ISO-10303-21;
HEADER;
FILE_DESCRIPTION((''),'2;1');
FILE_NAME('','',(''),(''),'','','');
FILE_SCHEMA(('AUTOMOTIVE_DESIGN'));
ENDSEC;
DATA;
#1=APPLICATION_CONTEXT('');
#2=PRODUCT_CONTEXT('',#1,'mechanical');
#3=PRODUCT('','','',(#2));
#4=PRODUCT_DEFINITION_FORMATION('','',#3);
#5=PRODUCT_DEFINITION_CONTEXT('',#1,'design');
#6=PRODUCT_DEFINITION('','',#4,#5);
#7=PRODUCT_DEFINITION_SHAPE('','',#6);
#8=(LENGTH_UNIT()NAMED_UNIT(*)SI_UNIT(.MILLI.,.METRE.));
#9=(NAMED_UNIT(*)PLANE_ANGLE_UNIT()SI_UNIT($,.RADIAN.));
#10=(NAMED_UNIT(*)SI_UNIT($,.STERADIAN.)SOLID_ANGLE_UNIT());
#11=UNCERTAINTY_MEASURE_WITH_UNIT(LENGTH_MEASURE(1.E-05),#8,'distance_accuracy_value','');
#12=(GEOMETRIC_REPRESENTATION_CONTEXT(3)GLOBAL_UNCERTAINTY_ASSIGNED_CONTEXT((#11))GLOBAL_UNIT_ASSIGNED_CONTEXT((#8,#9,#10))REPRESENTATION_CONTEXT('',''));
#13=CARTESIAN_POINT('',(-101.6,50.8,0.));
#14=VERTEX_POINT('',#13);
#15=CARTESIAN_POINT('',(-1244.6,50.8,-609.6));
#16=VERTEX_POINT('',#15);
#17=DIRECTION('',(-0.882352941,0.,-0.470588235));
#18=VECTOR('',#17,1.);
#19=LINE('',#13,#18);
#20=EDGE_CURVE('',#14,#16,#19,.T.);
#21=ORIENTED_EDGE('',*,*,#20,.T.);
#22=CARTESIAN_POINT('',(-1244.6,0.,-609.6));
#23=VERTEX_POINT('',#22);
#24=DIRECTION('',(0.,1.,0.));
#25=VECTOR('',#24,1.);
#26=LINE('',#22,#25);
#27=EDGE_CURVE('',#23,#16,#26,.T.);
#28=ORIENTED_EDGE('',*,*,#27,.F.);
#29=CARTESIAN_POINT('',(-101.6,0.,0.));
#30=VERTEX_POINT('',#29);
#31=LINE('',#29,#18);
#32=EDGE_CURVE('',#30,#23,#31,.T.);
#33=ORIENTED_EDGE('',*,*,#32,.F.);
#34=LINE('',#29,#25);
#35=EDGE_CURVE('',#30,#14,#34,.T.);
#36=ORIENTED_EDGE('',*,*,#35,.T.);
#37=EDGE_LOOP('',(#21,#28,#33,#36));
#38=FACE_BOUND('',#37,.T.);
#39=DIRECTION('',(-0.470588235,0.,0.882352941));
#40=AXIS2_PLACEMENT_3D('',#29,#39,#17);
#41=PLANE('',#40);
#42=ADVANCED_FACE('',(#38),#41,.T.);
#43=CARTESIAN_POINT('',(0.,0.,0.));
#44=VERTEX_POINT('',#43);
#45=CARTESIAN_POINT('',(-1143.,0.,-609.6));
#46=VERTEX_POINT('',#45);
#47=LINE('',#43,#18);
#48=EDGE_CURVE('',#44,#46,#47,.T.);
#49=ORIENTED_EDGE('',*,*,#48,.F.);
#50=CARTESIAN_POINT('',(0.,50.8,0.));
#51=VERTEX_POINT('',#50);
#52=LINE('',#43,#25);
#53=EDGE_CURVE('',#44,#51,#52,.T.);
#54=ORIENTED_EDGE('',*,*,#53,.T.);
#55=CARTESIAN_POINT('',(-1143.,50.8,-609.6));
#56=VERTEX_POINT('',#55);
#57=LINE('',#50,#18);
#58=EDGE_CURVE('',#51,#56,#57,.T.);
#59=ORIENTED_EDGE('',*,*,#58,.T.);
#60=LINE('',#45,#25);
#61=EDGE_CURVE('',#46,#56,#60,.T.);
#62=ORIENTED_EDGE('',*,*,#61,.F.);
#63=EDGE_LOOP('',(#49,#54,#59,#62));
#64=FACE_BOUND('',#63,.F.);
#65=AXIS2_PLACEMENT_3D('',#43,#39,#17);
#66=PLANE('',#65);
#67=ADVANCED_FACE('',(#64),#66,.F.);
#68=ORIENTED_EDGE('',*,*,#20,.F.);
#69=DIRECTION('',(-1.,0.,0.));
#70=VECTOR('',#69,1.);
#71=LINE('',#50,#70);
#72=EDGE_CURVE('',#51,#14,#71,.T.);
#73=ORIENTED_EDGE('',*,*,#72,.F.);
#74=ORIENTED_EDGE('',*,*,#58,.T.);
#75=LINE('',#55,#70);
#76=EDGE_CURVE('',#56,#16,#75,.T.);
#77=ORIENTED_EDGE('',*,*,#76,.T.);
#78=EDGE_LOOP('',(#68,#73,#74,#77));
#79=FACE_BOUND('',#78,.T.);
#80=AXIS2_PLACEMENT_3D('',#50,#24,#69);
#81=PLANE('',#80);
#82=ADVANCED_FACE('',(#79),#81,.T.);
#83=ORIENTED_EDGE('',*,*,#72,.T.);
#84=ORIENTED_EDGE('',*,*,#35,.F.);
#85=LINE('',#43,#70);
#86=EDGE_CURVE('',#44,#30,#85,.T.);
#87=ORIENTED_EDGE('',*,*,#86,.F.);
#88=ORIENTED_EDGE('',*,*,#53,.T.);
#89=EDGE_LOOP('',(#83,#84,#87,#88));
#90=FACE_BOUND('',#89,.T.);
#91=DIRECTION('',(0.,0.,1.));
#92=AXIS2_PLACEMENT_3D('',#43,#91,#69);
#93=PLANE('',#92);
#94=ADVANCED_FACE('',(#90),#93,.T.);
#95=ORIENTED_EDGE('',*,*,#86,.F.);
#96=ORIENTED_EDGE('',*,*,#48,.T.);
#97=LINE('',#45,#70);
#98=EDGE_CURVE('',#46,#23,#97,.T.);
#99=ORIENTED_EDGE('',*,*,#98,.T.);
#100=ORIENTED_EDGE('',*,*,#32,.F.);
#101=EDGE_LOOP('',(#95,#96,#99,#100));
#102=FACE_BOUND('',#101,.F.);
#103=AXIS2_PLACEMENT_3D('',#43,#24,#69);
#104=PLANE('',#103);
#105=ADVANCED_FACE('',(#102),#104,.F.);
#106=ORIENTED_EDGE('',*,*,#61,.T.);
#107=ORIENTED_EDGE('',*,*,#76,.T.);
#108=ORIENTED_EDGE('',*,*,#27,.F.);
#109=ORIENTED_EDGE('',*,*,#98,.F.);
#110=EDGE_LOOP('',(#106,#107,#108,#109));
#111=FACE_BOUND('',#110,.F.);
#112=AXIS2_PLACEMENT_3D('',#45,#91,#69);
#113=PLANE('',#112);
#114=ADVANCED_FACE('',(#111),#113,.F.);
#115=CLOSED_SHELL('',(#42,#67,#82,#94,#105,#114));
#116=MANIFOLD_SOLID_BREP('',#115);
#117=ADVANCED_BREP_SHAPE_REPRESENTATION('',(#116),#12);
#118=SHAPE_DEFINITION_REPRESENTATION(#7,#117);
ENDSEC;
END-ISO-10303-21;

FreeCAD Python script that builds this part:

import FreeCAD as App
import Part
import Sketcher

V = App.Vector
Q = App.Units.Quantity

doc = App.newDocument("Part")
body = doc.addObject("PartDesign::Body", "Body")

# Sketch on XZ plane
sketch1 = doc.addObject("Sketcher::SketchObject", "Sketch")
body.addObject(sketch1)
sketch1.AttachmentSupport = (doc.XZ_Plane, [""])
sketch1.MapMode = "FlatFace"
sketch1.addGeometry([
    Part.LineSegment(V(-102, 0, 0), V(0, 0, 0)),
    Part.LineSegment(V(0, 0, 0), V(-1143, -610, 0)),
    Part.LineSegment(V(-1143, -610, 0), V(-1245, -610, 0)),
    Part.LineSegment(V(-1245, -610, 0), V(-102, 0, 0)),
], False)
sketch1.addConstraint([
    Sketcher.Constraint("Coincident", 0, 2, 1, 1),
    Sketcher.Constraint("Coincident", 1, 2, 2, 1),
    Sketcher.Constraint("Coincident", 2, 2, 3, 1),
    Sketcher.Constraint("Coincident", 3, 2, 0, 1),
    Sketcher.Constraint("Horizontal", 0),
    Sketcher.Constraint("Horizontal", 2),
    Sketcher.Constraint("Coincident", 0, 2, -1, 1),
    Sketcher.Constraint("Parallel", 1, 3),
    Sketcher.Constraint("DistanceX", 0, 1, 0, 2, Q("4 in")),
    Sketcher.Constraint("DistanceX", 1, 2, -1, 1, Q("45 in")),
    Sketcher.Constraint("DistanceY", 1, 2, -1, 1, Q("24 in")),
])
pad1 = doc.addObject("PartDesign::Pad", "Pad")
body.addObject(pad1)
pad1.Profile = sketch1
pad1.Length = Q("2 in")
pad1.Reversed = True

doc.recompute()
